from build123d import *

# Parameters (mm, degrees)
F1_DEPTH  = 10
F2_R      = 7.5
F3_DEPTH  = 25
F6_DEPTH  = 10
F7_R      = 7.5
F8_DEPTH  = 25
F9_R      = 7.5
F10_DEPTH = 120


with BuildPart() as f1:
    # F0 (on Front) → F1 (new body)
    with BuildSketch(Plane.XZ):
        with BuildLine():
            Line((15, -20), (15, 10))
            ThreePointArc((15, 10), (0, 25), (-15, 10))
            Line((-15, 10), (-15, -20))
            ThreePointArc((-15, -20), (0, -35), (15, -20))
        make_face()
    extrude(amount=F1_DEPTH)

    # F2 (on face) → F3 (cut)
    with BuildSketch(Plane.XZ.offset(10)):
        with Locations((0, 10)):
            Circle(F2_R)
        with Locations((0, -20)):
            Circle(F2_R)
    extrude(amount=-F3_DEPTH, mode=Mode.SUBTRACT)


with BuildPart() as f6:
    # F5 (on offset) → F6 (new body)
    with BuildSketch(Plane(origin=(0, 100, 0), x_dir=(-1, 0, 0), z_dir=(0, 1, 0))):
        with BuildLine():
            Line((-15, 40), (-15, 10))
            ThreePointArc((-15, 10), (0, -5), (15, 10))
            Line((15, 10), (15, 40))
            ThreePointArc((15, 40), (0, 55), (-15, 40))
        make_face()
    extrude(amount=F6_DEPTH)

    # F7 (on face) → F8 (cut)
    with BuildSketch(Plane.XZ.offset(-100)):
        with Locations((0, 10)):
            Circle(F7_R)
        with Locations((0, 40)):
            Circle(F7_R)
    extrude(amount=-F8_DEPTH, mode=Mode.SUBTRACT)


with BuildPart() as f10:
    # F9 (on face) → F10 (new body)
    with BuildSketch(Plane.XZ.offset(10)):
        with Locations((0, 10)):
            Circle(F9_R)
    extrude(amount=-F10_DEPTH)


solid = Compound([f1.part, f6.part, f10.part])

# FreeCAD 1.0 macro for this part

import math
import FreeCAD as App
import Part
import Sketcher
Q = App.Units.Quantity

doc = App.newDocument("Part")
body = doc.addObject("PartDesign::Body", "Body")

# Sketch on XZ plane
sketch1 = body.newObject("Sketcher::SketchObject", "Sketch")
sketch1.AttachmentSupport = (doc.getObject("XZ_Plane"), [""])
sketch1.MapMode = "FlatFace"
sketch1.addGeometry([
    Part.LineSegment(App.Vector(15, -20, 0), App.Vector(15, 10, 0)),
    Part.ArcOfCircle(Part.Circle(App.Vector(0, 10, 0), App.Vector(0, 0, 1), 15), math.radians(0), math.radians(180)),
    Part.LineSegment(App.Vector(-15, 10, 0), App.Vector(-15, -20, 0)),
    Part.ArcOfCircle(Part.Circle(App.Vector(0, -20, 0), App.Vector(0, 0, 1), 15), math.radians(180), math.radians(360)),
], False)
sketch1.addConstraint([
    Sketcher.Constraint("Tangent", 0, 2, 1, 1),
    Sketcher.Constraint("Tangent", 1, 2, 2, 1),
    Sketcher.Constraint("Tangent", 2, 2, 3, 1),
    Sketcher.Constraint("Tangent", 3, 2, 0, 1),
    Sketcher.Constraint("Vertical", 0),
    Sketcher.Constraint("Vertical", 2),
    Sketcher.Constraint("PointOnObject", 1, 3, -2),
    Sketcher.Constraint("Radius", 1, Q("15 mm")),
    Sketcher.Constraint("DistanceY", 0, 1, 0, 2, Q("30 mm")),
    Sketcher.Constraint("DistanceY", -1, 1, 1, 3, Q("10 mm")),
])
pad1 = body.newObject("PartDesign::Pad", "Pad")
pad1.Profile = sketch1
pad1.Length = 10

# Sketch on XZ plane
sketch2 = body.newObject("Sketcher::SketchObject", "Sketch001")
sketch2.AttachmentSupport = (doc.getObject("XZ_Plane"), [""])
sketch2.MapMode = "FlatFace"
sketch2.AttachmentOffset = App.Placement(App.Vector(0, 0, 10), App.Rotation())
sketch2.addGeometry([
    Part.Circle(App.Vector(0, 10, 0), App.Vector(0, 0, 1), 8),
    Part.Circle(App.Vector(0, -20, 0), App.Vector(0, 0, 1), 8),
], False)
sketch2.addConstraint([
    Sketcher.Constraint("Equal", 0, 1),
    Sketcher.Constraint("PointOnObject", 0, 3, -2),
    Sketcher.Constraint("PointOnObject", 1, 3, -2),
    Sketcher.Constraint("Diameter", 0, Q("15 mm")),
    Sketcher.Constraint("DistanceY", -1, 1, 0, 3, Q("10 mm")),
    Sketcher.Constraint("DistanceY", 1, 3, -1, 1, Q("20 mm")),
])
pocket1 = body.newObject("PartDesign::Pocket", "Pocket")
pocket1.Profile = sketch2
pocket1.Length = 25
body2 = doc.addObject("PartDesign::Body", "Body001")

# Sketch on XZ plane
sketch3 = body2.newObject("Sketcher::SketchObject", "Sketch002")
sketch3.AttachmentSupport = (doc.getObject("XZ_Plane001"), [""])
sketch3.MapMode = "FlatFace"
sketch3.AttachmentOffset = App.Placement(App.Vector(0, 0, -100), App.Rotation())
sketch3.addGeometry([
    Part.LineSegment(App.Vector(15, 40, 0), App.Vector(15, 10, 0)),
    Part.ArcOfCircle(Part.Circle(App.Vector(0, 10, 0), App.Vector(0, 0, 1), 15), math.radians(180), math.radians(360)),
    Part.LineSegment(App.Vector(-15, 10, 0), App.Vector(-15, 40, 0)),
    Part.ArcOfCircle(Part.Circle(App.Vector(0, 40, 0), App.Vector(0, 0, 1), 15), math.radians(0), math.radians(180)),
], False)
sketch3.addConstraint([
    Sketcher.Constraint("Tangent", 0, 2, 1, 2),
    Sketcher.Constraint("Tangent", 1, 1, 2, 1),
    Sketcher.Constraint("Tangent", 2, 2, 3, 2),
    Sketcher.Constraint("Tangent", 3, 1, 0, 1),
    Sketcher.Constraint("Vertical", 0),
    Sketcher.Constraint("Vertical", 2),
    Sketcher.Constraint("PointOnObject", 1, 3, -2),
    Sketcher.Constraint("Radius", 1, Q("15 mm")),
    Sketcher.Constraint("DistanceY", 0, 2, 0, 1, Q("30 mm")),
    Sketcher.Constraint("DistanceY", -1, 1, 1, 3, Q("10 mm")),
])
pad2 = body2.newObject("PartDesign::Pad", "Pad001")
pad2.Profile = sketch3
pad2.Length = 10
pad2.Reversed = True

# Sketch on XZ plane
sketch4 = body2.newObject("Sketcher::SketchObject", "Sketch003")
sketch4.AttachmentSupport = (doc.getObject("XZ_Plane001"), [""])
sketch4.MapMode = "FlatFace"
sketch4.AttachmentOffset = App.Placement(App.Vector(0, 0, -100), App.Rotation())
sketch4.addGeometry([
    Part.Circle(App.Vector(0, 10, 0), App.Vector(0, 0, 1), 8),
    Part.Circle(App.Vector(0, 40, 0), App.Vector(0, 0, 1), 8),
], False)
sketch4.addConstraint([
    Sketcher.Constraint("Equal", 0, 1),
    Sketcher.Constraint("PointOnObject", 0, 3, -2),
    Sketcher.Constraint("PointOnObject", 1, 3, -2),
    Sketcher.Constraint("Diameter", 0, Q("15 mm")),
    Sketcher.Constraint("DistanceY", -1, 1, 0, 3, Q("10 mm")),
    Sketcher.Constraint("DistanceY", -1, 1, 1, 3, Q("40 mm")),
])
pocket2 = body2.newObject("PartDesign::Pocket", "Pocket001")
pocket2.Profile = sketch4
pocket2.Length = 25
body3 = doc.addObject("PartDesign::Body", "Body002")

# Sketch on XZ plane
sketch5 = body3.newObject("Sketcher::SketchObject", "Sketch004")
sketch5.AttachmentSupport = (doc.getObject("XZ_Plane002"), [""])
sketch5.MapMode = "FlatFace"
sketch5.AttachmentOffset = App.Placement(App.Vector(0, 0, 10), App.Rotation())
sketch5.addGeometry(Part.Circle(App.Vector(0, 10, 0), App.Vector(0, 0, 1), 8), False)
sketch5.addConstraint([
    Sketcher.Constraint("PointOnObject", 0, 3, -2),
    Sketcher.Constraint("Diameter", 0, Q("15 mm")),
    Sketcher.Constraint("DistanceY", -1, 1, 0, 3, Q("10 mm")),
])
pad3 = body3.newObject("PartDesign::Pad", "Pad002")
pad3.Profile = sketch5
pad3.Length = 120
pad3.Reversed = True

doc.recompute()
